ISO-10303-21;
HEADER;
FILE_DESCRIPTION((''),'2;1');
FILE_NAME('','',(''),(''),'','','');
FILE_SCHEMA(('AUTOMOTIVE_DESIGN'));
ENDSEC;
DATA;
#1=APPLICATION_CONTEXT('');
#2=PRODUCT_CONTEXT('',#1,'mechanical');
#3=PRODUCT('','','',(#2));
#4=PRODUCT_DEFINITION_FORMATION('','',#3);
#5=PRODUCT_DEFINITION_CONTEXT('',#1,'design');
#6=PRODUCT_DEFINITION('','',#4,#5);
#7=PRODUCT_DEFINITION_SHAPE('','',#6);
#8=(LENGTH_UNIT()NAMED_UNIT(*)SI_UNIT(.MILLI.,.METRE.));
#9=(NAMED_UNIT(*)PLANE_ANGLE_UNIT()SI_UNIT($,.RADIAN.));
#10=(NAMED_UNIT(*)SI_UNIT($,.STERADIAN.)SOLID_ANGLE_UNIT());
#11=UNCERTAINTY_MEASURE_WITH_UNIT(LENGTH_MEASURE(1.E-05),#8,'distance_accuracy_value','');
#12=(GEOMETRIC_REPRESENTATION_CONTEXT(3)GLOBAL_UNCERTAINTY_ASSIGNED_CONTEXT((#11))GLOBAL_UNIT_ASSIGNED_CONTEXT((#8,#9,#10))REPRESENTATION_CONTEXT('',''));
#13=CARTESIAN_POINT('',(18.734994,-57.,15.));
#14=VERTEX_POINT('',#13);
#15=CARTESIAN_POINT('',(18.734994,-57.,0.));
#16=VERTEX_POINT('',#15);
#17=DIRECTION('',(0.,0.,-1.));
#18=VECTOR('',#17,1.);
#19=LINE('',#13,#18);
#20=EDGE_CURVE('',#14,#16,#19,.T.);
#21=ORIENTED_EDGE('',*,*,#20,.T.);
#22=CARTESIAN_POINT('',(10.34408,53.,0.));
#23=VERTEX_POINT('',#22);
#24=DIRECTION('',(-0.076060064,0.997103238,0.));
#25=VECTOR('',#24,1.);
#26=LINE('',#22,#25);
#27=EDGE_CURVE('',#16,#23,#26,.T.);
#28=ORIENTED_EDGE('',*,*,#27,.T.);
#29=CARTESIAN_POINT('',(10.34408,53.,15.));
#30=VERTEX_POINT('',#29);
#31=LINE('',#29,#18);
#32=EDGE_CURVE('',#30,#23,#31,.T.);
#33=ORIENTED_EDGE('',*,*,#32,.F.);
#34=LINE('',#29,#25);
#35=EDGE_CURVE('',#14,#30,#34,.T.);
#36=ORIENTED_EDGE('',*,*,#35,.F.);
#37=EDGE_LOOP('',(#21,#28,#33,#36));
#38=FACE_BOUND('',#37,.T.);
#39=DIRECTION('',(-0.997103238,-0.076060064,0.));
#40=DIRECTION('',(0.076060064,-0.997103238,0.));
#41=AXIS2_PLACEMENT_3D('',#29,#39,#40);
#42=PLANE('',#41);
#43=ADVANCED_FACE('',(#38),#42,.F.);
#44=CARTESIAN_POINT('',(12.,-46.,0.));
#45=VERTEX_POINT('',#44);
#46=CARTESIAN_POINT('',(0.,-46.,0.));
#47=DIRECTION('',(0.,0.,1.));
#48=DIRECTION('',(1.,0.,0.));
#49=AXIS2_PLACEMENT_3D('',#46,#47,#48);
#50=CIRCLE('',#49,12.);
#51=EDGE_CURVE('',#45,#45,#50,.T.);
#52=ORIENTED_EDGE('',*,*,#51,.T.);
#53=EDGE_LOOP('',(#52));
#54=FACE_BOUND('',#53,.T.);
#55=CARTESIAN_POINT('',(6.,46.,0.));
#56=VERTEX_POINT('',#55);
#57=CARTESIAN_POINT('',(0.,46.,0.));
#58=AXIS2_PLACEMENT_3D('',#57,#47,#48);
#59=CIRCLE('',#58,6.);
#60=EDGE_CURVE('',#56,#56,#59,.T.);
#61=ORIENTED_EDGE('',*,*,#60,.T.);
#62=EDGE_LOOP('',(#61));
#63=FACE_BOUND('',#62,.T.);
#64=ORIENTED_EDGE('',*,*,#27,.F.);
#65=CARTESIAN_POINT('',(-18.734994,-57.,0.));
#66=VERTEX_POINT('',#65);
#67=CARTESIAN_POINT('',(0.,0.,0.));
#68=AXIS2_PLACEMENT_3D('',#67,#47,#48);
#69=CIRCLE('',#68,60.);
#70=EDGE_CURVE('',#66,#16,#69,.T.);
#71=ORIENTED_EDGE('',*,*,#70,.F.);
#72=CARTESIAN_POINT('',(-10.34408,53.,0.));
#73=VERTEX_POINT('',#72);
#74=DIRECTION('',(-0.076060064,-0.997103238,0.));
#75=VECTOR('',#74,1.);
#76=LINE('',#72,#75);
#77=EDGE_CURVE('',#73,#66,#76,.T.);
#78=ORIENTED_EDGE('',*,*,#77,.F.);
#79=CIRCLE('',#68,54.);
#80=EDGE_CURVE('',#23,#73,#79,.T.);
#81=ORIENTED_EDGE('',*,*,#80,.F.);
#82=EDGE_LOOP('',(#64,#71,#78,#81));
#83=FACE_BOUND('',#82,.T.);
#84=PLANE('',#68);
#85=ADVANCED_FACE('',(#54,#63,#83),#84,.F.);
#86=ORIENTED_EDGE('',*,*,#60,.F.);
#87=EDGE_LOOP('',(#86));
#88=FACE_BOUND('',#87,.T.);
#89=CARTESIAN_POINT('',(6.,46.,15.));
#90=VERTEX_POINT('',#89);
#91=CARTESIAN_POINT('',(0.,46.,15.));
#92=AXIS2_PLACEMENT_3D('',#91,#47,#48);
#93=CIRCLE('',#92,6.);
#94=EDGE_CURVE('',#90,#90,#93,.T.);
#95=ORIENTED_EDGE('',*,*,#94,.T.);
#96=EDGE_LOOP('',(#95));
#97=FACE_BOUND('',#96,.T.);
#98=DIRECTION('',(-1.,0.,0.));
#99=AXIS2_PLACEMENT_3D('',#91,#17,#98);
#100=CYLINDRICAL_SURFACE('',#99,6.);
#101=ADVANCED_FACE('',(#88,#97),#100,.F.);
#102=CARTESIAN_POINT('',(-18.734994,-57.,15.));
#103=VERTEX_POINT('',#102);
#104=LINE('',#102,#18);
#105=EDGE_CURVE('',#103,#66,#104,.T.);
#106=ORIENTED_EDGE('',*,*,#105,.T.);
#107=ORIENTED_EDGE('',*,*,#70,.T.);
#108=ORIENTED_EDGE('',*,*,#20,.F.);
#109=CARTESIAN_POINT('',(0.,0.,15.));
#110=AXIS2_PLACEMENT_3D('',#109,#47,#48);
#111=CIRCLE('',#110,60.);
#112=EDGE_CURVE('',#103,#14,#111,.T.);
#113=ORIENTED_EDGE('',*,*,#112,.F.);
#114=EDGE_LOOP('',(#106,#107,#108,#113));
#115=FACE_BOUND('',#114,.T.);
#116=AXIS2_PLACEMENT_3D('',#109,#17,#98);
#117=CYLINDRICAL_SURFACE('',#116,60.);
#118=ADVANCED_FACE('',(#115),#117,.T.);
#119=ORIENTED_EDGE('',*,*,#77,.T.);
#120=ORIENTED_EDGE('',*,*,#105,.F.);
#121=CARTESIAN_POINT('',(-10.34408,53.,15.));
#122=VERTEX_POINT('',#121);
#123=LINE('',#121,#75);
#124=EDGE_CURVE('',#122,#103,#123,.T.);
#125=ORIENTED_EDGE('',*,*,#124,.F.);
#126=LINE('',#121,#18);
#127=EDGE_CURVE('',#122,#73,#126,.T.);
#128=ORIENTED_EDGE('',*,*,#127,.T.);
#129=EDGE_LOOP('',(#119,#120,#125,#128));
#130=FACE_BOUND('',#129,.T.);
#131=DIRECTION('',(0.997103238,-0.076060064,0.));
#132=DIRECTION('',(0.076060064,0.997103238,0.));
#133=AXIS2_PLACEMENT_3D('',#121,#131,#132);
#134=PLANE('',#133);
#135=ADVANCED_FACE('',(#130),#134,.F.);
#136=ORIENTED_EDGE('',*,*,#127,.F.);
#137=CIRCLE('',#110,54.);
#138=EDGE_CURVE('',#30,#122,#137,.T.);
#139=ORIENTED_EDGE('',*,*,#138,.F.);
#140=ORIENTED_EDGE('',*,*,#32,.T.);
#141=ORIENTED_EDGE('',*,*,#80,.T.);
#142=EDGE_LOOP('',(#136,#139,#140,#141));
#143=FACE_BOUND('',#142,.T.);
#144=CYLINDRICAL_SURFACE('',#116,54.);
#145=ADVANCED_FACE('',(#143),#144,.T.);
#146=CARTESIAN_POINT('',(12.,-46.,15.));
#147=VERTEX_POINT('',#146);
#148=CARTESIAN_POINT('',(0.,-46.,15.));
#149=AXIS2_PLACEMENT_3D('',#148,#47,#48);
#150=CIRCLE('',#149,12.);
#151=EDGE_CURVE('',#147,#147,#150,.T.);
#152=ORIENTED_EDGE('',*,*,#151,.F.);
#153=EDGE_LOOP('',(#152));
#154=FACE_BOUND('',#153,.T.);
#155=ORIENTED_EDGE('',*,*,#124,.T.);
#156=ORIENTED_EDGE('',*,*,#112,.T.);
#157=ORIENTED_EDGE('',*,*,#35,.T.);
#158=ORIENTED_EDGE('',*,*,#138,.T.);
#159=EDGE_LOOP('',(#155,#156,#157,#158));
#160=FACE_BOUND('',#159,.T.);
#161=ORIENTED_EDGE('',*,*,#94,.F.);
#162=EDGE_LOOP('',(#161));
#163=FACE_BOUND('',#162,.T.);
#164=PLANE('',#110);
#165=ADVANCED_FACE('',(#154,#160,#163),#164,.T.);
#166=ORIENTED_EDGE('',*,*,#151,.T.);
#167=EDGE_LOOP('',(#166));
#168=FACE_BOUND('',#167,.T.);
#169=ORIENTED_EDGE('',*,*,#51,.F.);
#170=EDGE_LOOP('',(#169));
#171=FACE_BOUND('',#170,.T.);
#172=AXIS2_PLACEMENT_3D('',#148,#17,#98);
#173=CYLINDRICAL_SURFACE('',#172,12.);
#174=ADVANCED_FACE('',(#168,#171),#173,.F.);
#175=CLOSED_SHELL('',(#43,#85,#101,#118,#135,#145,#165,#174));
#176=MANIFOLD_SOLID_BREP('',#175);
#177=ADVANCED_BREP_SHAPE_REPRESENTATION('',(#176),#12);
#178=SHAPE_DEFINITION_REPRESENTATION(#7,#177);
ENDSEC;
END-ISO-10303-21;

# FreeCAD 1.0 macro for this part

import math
import FreeCAD as App
import Part
import Sketcher

V = App.Vector

doc = App.newDocument("Part")
body = doc.addObject("PartDesign::Body", "Body")

# Sketch on XY plane
sketch1 = doc.addObject("Sketcher::SketchObject", "Sketch")
body.addObject(sketch1)
sketch1.AttachmentSupport = (doc.XY_Plane, [""])
sketch1.MapMode = "FlatFace"
sketch1.addGeometry([
    Part.LineSegment(V(-10.34408, 53, 0), V(-18.734994, -57, 0)),  # 0
    Part.ArcOfCircle(Part.Circle(V(0, 0, 0), V(0, 0, 1), 60), math.radians(-108.194872), math.radians(-71.805128)),  # 1
    Part.LineSegment(V(18.734994, -57, 0), V(10.34408, 53, 0)),  # 2
    Part.ArcOfCircle(Part.Circle(V(0, 0, 0), V(0, 0, 1), 54), math.radians(78.956334), math.radians(101.043666)),  # 3
    Part.Circle(V(0, -46, 0), V(0, 0, 1), 12),  # 4
    Part.Circle(V(0, 46, 0), V(0, 0, 1), 6),  # 5
], False)
sketch1.addConstraint([
    Sketcher.Constraint("Coincident", 0, 2, 1, 1),
    Sketcher.Constraint("Coincident", 1, 2, 2, 1),
    Sketcher.Constraint("Coincident", 2, 2, 3, 1),
    Sketcher.Constraint("Coincident", 3, 2, 0, 1),
    Sketcher.Constraint("Coincident", 1, 3, -1, 1),
    Sketcher.Constraint("Coincident", 3, 3, -1, 1),
    Sketcher.Constraint("Symmetric", 4, 3, 5, 3, -1, 1),
    Sketcher.Constraint("PointOnObject", 4, 3, -2),
    Sketcher.Constraint("Horizontal", 0, 2, 1, 2),
    Sketcher.Constraint("Horizontal", 2, 2, 3, 2),
    Sketcher.Constraint("Diameter", 4, 24.0),
    Sketcher.Constraint("Diameter", 5, 12.0),
    Sketcher.Constraint("Radius", 1, 60.0),
    Sketcher.Constraint("Radius", 3, 54.0),
    Sketcher.Constraint("DistanceY", 4, 3, -1, 1, 46.0),
    Sketcher.Constraint("DistanceY", 0, 2, -1, 1, 57.0),
    Sketcher.Constraint("DistanceY", -1, 1, 2, 2, 53.0),
])
pad1 = doc.addObject("PartDesign::Pad", "Pad")
body.addObject(pad1)
pad1.Profile = sketch1
pad1.Length = 15

doc.recompute()
